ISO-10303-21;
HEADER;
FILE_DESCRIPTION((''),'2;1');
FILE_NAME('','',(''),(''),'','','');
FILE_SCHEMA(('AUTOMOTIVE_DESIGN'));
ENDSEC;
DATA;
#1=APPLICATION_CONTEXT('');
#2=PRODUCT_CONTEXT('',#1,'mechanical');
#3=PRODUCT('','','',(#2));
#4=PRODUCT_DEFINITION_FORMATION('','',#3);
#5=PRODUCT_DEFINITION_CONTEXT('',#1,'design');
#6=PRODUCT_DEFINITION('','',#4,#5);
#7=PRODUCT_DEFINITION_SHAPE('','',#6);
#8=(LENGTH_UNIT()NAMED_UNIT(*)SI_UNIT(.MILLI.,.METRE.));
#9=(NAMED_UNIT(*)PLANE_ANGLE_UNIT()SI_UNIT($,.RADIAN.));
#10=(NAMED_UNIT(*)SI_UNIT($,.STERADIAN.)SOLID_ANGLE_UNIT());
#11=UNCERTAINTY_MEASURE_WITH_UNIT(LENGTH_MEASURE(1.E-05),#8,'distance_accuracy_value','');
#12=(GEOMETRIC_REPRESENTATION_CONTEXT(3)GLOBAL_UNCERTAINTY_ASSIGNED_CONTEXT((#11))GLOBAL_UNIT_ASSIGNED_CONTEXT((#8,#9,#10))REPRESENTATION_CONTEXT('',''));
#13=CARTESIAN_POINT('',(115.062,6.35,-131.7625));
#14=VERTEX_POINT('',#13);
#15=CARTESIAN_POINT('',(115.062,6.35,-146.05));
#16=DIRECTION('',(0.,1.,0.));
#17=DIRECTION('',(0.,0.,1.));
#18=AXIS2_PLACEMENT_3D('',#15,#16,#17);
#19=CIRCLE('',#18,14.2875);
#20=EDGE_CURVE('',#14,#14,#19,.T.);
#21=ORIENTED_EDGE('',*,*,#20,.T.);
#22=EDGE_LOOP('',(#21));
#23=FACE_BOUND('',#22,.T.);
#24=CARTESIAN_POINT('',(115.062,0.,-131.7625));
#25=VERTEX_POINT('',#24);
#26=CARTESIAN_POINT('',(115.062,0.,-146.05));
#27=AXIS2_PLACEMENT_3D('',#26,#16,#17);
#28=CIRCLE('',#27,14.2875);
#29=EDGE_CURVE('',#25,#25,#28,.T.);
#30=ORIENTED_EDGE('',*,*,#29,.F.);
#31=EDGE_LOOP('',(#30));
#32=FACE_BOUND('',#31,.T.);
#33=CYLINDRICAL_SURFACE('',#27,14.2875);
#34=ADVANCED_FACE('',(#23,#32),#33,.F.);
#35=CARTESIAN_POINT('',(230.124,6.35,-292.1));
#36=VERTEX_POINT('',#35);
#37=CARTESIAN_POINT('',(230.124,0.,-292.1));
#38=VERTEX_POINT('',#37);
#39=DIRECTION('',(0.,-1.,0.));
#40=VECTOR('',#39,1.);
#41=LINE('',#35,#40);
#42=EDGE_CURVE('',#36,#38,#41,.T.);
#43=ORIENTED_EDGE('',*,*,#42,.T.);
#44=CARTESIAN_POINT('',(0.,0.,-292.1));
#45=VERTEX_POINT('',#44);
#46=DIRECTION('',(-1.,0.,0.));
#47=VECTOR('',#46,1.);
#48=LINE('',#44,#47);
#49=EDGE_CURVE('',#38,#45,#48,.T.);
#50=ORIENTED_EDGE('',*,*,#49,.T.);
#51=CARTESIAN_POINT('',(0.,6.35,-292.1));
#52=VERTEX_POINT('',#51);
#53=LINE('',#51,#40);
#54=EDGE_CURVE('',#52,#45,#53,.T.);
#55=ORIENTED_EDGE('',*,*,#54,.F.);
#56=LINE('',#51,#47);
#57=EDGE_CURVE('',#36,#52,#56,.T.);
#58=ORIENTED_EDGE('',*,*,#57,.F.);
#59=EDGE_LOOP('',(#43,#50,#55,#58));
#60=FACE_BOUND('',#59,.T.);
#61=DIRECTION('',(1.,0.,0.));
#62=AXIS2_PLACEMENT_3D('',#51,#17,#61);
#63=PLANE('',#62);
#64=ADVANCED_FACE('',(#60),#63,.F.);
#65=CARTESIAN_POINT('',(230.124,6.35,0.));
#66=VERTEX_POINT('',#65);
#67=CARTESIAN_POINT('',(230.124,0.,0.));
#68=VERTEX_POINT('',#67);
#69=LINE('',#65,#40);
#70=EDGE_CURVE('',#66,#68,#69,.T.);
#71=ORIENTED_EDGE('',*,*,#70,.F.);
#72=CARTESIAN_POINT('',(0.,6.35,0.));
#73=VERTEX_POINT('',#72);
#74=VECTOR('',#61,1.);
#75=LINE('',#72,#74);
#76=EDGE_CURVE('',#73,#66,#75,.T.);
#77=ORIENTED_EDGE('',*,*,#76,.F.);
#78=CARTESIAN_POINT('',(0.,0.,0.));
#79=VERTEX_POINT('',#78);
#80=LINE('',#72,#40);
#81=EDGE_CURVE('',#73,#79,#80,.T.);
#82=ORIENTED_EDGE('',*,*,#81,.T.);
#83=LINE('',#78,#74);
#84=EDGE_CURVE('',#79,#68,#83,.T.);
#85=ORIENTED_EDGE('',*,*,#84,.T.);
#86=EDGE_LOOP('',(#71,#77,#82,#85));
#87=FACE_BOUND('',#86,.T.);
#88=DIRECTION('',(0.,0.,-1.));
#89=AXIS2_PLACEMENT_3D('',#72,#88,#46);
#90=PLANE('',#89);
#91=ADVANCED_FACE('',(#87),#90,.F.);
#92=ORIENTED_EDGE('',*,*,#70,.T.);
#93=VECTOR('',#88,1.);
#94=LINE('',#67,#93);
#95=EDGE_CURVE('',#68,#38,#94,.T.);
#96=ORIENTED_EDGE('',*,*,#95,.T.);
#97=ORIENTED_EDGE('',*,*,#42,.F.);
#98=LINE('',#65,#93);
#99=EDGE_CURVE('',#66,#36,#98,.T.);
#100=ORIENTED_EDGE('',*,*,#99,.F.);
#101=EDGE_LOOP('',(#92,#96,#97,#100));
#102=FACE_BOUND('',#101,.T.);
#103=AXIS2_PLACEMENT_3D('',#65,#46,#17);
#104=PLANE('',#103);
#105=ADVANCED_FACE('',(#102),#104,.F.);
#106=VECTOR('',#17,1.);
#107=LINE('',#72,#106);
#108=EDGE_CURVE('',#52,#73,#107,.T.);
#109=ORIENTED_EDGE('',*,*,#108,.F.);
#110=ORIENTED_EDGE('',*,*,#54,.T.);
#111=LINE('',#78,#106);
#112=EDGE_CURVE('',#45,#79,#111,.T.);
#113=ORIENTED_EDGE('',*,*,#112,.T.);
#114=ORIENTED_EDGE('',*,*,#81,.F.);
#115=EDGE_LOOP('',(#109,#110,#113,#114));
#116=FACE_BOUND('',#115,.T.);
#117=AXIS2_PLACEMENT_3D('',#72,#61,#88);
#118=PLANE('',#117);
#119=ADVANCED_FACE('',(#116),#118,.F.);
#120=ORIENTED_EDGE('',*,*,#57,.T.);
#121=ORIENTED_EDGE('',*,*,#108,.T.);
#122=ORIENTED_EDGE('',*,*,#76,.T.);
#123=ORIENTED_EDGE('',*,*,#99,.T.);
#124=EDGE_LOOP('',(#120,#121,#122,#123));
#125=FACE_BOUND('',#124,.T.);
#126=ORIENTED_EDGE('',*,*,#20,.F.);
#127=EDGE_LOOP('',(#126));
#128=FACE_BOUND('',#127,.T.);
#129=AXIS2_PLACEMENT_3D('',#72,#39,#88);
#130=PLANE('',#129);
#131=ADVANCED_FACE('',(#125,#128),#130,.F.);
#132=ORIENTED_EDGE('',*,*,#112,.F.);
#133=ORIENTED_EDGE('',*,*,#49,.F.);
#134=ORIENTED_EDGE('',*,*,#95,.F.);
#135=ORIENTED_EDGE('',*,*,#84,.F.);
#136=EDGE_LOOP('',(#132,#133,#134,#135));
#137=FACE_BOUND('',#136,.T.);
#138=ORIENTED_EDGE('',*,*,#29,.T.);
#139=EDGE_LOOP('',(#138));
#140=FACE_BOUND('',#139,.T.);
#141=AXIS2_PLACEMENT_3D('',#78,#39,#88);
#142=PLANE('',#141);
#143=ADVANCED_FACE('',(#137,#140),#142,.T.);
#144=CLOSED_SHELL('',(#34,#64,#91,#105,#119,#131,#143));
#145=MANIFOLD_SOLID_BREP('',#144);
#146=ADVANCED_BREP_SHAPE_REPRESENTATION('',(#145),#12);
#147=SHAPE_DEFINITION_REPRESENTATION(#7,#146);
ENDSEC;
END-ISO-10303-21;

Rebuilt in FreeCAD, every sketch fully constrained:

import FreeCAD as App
import Part
import Sketcher
Q = App.Units.Quantity

doc = App.newDocument("Part")
body = doc.addObject("PartDesign::Body", "Body")

# Sketch on XZ plane
sketch1 = body.newObject("Sketcher::SketchObject", "Sketch")
sketch1.AttachmentSupport = (doc.getObject("XZ_Plane"), [""])
sketch1.MapMode = "FlatFace"
sketch1.addGeometry([
    Part.LineSegment(App.Vector(0, -292.1, 0), App.Vector(0, 0, 0)),
    Part.LineSegment(App.Vector(0, 0, 0), App.Vector(230.124, 0, 0)),
    Part.LineSegment(App.Vector(230.124, 0, 0), App.Vector(230.124, -292.1, 0)),
    Part.LineSegment(App.Vector(230.124, -292.1, 0), App.Vector(0, -292.1, 0)),
], False)
sketch1.addConstraint([
    Sketcher.Constraint("Coincident", 0, 2, 1, 1),
    Sketcher.Constraint("Coincident", 1, 2, 2, 1),
    Sketcher.Constraint("Coincident", 2, 2, 3, 1),
    Sketcher.Constraint("Coincident", 3, 2, 0, 1),
    Sketcher.Constraint("Vertical", 0),
    Sketcher.Constraint("Horizontal", 1),
    Sketcher.Constraint("Vertical", 2),
    Sketcher.Constraint("Horizontal", 3),
    Sketcher.Constraint("Coincident", 0, 2, -1, 1),
    Sketcher.Constraint("DistanceY", 0, 1, 0, 2, Q("11.5 in")),
    Sketcher.Constraint("DistanceX", 1, 1, 1, 2, Q("9.06 in")),
])
pad1 = body.newObject("PartDesign::Pad", "Pad")
pad1.Profile = sketch1
pad1.Length = Q("0.25 in")
pad1.Reversed = True

# Sketch on XZ plane
sketch2 = body.newObject("Sketcher::SketchObject", "Sketch001")
sketch2.AttachmentSupport = (doc.getObject("XZ_Plane"), [""])
sketch2.MapMode = "FlatFace"
sketch2.AttachmentOffset = App.Placement(App.Vector(0, 0, -0.25 * 25.4), App.Rotation())
sketch2.addGeometry(Part.Circle(App.Vector(115.062, -146.05, 0), App.Vector(0, 0, 1), 14.2875), False)
sketch2.addConstraint([
    Sketcher.Constraint("Diameter", 0, Q("1.125 in")),
    Sketcher.Constraint("DistanceX", -1, 1, 0, 3, Q("4.53 in")),
    Sketcher.Constraint("DistanceY", 0, 3, -1, 1, Q("5.75 in")),
])
pocket1 = body.newObject("PartDesign::Pocket", "Pocket")
pocket1.Profile = sketch2
pocket1.Length = Q("0.25 in")
pocket1.Reversed = True

doc.recompute()
